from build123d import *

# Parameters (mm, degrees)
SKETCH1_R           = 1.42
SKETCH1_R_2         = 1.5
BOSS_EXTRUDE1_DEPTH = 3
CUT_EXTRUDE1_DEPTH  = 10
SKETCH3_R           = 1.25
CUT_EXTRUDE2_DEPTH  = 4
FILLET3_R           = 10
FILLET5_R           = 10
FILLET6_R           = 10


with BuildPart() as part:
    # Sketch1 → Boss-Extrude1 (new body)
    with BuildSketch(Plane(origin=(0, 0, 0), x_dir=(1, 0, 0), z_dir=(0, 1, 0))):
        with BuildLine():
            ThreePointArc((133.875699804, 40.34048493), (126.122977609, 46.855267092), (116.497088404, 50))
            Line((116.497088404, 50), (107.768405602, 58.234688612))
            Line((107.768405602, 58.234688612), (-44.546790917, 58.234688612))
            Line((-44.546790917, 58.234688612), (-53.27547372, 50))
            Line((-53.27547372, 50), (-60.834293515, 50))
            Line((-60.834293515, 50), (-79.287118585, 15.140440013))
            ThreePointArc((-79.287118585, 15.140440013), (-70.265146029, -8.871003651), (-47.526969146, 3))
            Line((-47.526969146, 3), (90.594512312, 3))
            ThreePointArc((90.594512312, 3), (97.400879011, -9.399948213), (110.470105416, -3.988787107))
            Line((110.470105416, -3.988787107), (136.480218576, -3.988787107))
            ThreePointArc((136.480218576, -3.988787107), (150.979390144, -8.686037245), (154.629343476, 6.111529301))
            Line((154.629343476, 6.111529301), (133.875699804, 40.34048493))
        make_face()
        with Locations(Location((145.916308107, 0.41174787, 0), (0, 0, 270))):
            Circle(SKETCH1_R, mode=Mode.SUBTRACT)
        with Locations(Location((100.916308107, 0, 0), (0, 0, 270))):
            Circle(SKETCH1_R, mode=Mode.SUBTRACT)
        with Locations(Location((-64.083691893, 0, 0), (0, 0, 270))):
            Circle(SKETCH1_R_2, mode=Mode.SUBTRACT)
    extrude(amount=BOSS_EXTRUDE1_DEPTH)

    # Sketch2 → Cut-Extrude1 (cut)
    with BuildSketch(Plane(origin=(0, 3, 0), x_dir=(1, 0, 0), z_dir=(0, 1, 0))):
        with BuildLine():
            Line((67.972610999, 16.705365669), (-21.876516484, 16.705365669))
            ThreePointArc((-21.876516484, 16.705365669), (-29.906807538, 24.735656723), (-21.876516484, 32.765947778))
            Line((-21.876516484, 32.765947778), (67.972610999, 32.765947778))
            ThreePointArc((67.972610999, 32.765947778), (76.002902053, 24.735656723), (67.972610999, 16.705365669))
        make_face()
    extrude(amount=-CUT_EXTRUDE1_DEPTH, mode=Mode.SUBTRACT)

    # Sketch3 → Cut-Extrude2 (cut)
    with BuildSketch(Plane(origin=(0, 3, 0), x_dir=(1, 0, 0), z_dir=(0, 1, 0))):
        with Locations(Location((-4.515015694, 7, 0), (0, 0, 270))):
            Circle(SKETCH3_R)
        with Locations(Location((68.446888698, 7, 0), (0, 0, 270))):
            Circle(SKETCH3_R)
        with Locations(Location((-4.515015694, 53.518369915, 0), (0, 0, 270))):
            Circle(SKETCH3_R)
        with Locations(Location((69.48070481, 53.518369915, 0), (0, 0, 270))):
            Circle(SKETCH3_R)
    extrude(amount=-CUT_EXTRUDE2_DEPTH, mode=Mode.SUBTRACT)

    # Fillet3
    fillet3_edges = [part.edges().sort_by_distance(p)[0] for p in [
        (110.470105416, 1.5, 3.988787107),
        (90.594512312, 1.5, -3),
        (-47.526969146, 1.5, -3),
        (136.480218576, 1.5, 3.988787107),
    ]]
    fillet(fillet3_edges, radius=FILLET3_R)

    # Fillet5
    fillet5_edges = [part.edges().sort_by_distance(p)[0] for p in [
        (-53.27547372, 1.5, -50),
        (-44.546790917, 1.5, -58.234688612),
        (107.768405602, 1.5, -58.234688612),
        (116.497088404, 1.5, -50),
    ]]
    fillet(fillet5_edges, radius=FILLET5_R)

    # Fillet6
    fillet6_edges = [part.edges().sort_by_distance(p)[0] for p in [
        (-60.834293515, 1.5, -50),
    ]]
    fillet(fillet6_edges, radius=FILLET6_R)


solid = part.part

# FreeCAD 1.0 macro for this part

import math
import FreeCAD as App
import Part
import Sketcher

V = App.Vector


def edges_at(feature, points):
    """Names of the edges that pass closest to the given points."""
    edges = feature.Shape.Edges
    near = lambda p: min(range(len(edges)), key=lambda i: edges[i].distToShape(Part.Vertex(*p))[0])
    return sorted({f"Edge{near(p) + 1}" for p in points})

doc = App.newDocument("Part")
params = doc.addObject("Spreadsheet::Sheet", "Params")
for row, (alias, value) in enumerate([
    ("sketch1_diameter", "3 mm"),
    ("sketch1_diameter2", "2.84 mm"),
    ("sketch1_diameter3", "2.84 mm"),
    ("sketch1_length", "12 mm"),
    ("sketch1_length2", "12 mm"),
    ("pad1_length", "3 mm"),
    ("pocket1_length", "10 mm"),
    ("sketch3_diameter", "2.5 mm"),
    ("pocket2_length", "4 mm"),
    ("fillet_radius", "10 mm"),
    ("fillet2_radius", "10 mm"),
    ("fillet3_radius", "10 mm"),
], start=1):
    params.set(f"A{row}", alias)
    params.set(f"B{row}", "=" + value)
    params.setAlias(f"B{row}", alias)

body = doc.addObject("PartDesign::Body", "Body")

# Sketch on XZ plane
sketch1 = body.newObject("Sketcher::SketchObject", "Sketch")
sketch1.AttachmentSupport = (doc.getObject("XZ_Plane"), [""])
sketch1.MapMode = "FlatFace"
sketch1.addGeometry(Part.ArcOfCircle(Part.Circle(V(113.201681, -23.608324, 0), V(0, 0, 1), 26.596621), math.radians(-82.882577), math.radians(-38.98438)), False)
sketch1.addGeometry(Part.LineSegment(V(116.497088, -50, 0), V(107.768406, -58.234689, 0)), False)
sketch1.addGeometry(Part.LineSegment(V(107.768406, -58.234689, 0), V(-44.546791, -58.234689, 0)), False)
sketch1.addGeometry(Part.LineSegment(V(-44.546791, -58.234689, 0), V(-53.275474, -50, 0)), False)
sketch1.addGeometry(Part.LineSegment(V(-53.275474, -50, 0), V(-60.834294, -50, 0)), False)
sketch1.addGeometry(Part.LineSegment(V(-60.834294, -50, 0), V(-79.287119, -15.14044, 0)), False)
sketch1.addGeometry(Part.ArcOfCircle(Part.Circle(V(-64.149669, -7.127467, 0), V(0, 0, 1), 17.127467), math.radians(13.944698), math.radians(207.8944)), False)
sketch1.addGeometry(Part.LineSegment(V(-47.526969, -3, 0), V(90.594512, -3, 0)), False)
sketch1.addGeometry(Part.ArcOfCircle(Part.Circle(V(100.916308, -0.597672, 0), V(0, 0, 1), 10.597672), math.radians(25.644107), math.radians(193.101954)), False)
sketch1.addGeometry(Part.LineSegment(V(110.470105, 3.988787, 0), V(136.480219, 3.988787, 0)), False)
sketch1.addGeometry(Part.ArcOfCircle(Part.Circle(V(145.916308, -0.411748, 0), V(0, 0, 1), 10.411748), math.radians(-33.191393), math.radians(154.997934)), False)
sketch1.addGeometry(Part.LineSegment(V(154.629343, -6.111529, 0), V(133.8757, -40.340485, 0)), False)
sketch1.addGeometry(Part.Circle(V(-64.083692, 0, 0), V(0, 0, 1), 1.5), False)
sketch1.addGeometry(Part.Circle(V(100.916308, 0, 0), V(0, 0, 1), 1.42), False)
sketch1.addGeometry(Part.Circle(V(145.916308, -0.411748, 0), V(0, 0, 1), 1.42), False)
sketch1.addConstraint(Sketcher.Constraint("Coincident", 0, 1, 1, 1))
sketch1.addConstraint(Sketcher.Constraint("Coincident", 1, 2, 2, 1))
sketch1.addConstraint(Sketcher.Constraint("Coincident", 2, 2, 3, 1))
sketch1.addConstraint(Sketcher.Constraint("Coincident", 3, 2, 4, 1))
sketch1.addConstraint(Sketcher.Constraint("Coincident", 4, 2, 5, 1))
sketch1.addConstraint(Sketcher.Constraint("Coincident", 5, 2, 6, 2))
sketch1.addConstraint(Sketcher.Constraint("Coincident", 6, 1, 7, 1))
sketch1.addConstraint(Sketcher.Constraint("Coincident", 7, 2, 8, 2))
sketch1.addConstraint(Sketcher.Constraint("Coincident", 8, 1, 9, 1))
sketch1.addConstraint(Sketcher.Constraint("Coincident", 9, 2, 10, 2))
sketch1.addConstraint(Sketcher.Constraint("Coincident", 10, 1, 11, 1))
sketch1.addConstraint(Sketcher.Constraint("Coincident", 11, 2, 0, 2))
sketch1.addConstraint(Sketcher.Constraint("Horizontal", 2))
sketch1.addConstraint(Sketcher.Constraint("Horizontal", 4))
sketch1.addConstraint(Sketcher.Constraint("Horizontal", 7))
sketch1.addConstraint(Sketcher.Constraint("Horizontal", 9))
sketch1.addConstraint(Sketcher.Constraint("Coincident", 14, 3, 10, 3))
sketch1.addConstraint(Sketcher.Constraint("PointOnObject", 12, 3, -1))
sketch1.addConstraint(Sketcher.Constraint("PointOnObject", 13, 3, -1))
sketch1.addConstraint(Sketcher.Constraint("Diameter", 12, 3.0))
sketch1.addConstraint(Sketcher.Constraint("Diameter", 13, 2.84))
sketch1.addConstraint(Sketcher.Constraint("Diameter", 14, 2.84))
sketch1.addConstraint(Sketcher.Constraint("Distance", 1, 12.0))
sketch1.addConstraint(Sketcher.Constraint("Distance", 3, 12.0))
sketch1.addConstraint(Sketcher.Constraint("DistanceY", 0, 1, -1, 1, 50.0))
sketch1.addConstraint(Sketcher.Constraint("DistanceY", 3, 2, -1, 1, 50.0))
sketch1.addConstraint(Sketcher.Constraint("DistanceY", 6, 1, -1, 1, 3.0))
sketch1.addConstraint(Sketcher.Constraint("DistanceX", 8, 3, 10, 3, 45.0))
sketch1.addConstraint(Sketcher.Constraint("DistanceX", 12, 3, 8, 3, 165.0))
sketch1.addConstraint(Sketcher.Constraint("DistanceX", 13, 3, 10, 3, 45.0))
sketch1.addConstraint(Sketcher.Constraint("Radius", 0, 26.596621))
sketch1.addConstraint(Sketcher.Constraint("Radius", 8, 10.597672))
sketch1.addConstraint(Sketcher.Constraint("Radius", 6, 17.127467))
sketch1.addConstraint(Sketcher.Constraint("Radius", 10, 10.411748))
sketch1.addConstraint(Sketcher.Constraint("DistanceX", 4, 2, 4, 1, 7.55882))
sketch1.addConstraint(Sketcher.Constraint("DistanceX", 7, 1, 7, 2, 138.121481))
sketch1.addConstraint(Sketcher.Constraint("DistanceX", -1, 1, 11, 2, 133.8757))
sketch1.addConstraint(Sketcher.Constraint("DistanceX", 12, 3, 2, 2, 19.536901))
sketch1.addConstraint(Sketcher.Constraint("DistanceX", 12, 3, 4, 2, 3.249398))
sketch1.addConstraint(Sketcher.Constraint("DistanceX", 4, 2, 1, 2, 168.602699))
sketch1.addConstraint(Sketcher.Constraint("DistanceX", 6, 3, 6, 1, 16.6227))
sketch1.addConstraint(Sketcher.Constraint("Distance", 5, 39.442308))
sketch1.addConstraint(Sketcher.Constraint("Distance", 11, 40.029178))
sketch1.addConstraint(Sketcher.Constraint("DistanceX", 9, 1, 9, 2, 26.010113))
sketch1.addConstraint(Sketcher.Constraint("DistanceX", -1, 1, 0, 3, 113.201681))
sketch1.addConstraint(Sketcher.Constraint("DistanceX", 6, 3, -1, 1, 64.149669))
sketch1.addConstraint(Sketcher.Constraint("DistanceX", -1, 1, 8, 3, 100.916308))
sketch1.addConstraint(Sketcher.Constraint("DistanceX", -1, 1, 9, 2, 136.480219))
sketch1.setExpression("Constraints[19]", "Params.sketch1_diameter")
sketch1.setExpression("Constraints[20]", "Params.sketch1_diameter2")
sketch1.setExpression("Constraints[21]", "Params.sketch1_diameter3")
sketch1.setExpression("Constraints[22]", "Params.sketch1_length")
sketch1.setExpression("Constraints[23]", "Params.sketch1_length2")
pad1 = body.newObject("PartDesign::Pad", "Pad")
pad1.Profile = sketch1
pad1.setExpression("Length", "Params.pad1_length")
pad1.Reversed = True

# Sketch on XZ plane
sketch2 = body.newObject("Sketcher::SketchObject", "Sketch001")
sketch2.AttachmentSupport = (doc.getObject("XZ_Plane"), [""])
sketch2.MapMode = "FlatFace"
sketch2.AttachmentOffset = App.Placement(V(0, 0, -3), App.Rotation())
sketch2.addGeometry(Part.LineSegment(V(-22, -17, 0), V(68, -17, 0)), False)
sketch2.addGeometry(Part.ArcOfCircle(Part.Circle(V(68, -25, 0), V(0, 0, 1), 8), math.radians(-90), math.radians(90)), False)
sketch2.addGeometry(Part.LineSegment(V(68, -33, 0), V(-22, -33, 0)), False)
sketch2.addGeometry(Part.ArcOfCircle(Part.Circle(V(-22, -25, 0), V(0, 0, 1), 8), math.radians(90), math.radians(270)), False)
sketch2.addConstraint(Sketcher.Constraint("Tangent", 0, 2, 1, 2))
sketch2.addConstraint(Sketcher.Constraint("Tangent", 1, 1, 2, 1))
sketch2.addConstraint(Sketcher.Constraint("Tangent", 2, 2, 3, 2))
sketch2.addConstraint(Sketcher.Constraint("Tangent", 3, 1, 0, 1))
sketch2.addConstraint(Sketcher.Constraint("Horizontal", 0))
sketch2.addConstraint(Sketcher.Constraint("Horizontal", 2))
sketch2.addConstraint(Sketcher.Constraint("Radius", 1, 8.030291))
sketch2.addConstraint(Sketcher.Constraint("DistanceX", 0, 1, 0, 2, 89.849127))
sketch2.addConstraint(Sketcher.Constraint("DistanceX", -1, 1, 1, 3, 67.972611))
sketch2.addConstraint(Sketcher.Constraint("DistanceY", 1, 3, -1, 1, 24.735657))
pocket1 = body.newObject("PartDesign::Pocket", "Pocket")
pocket1.Profile = sketch2
pocket1.setExpression("Length", "Params.pocket1_length")
pocket1.Reversed = True

# Sketch on XZ plane
sketch3 = body.newObject("Sketcher::SketchObject", "Sketch002")
sketch3.AttachmentSupport = (doc.getObject("XZ_Plane"), [""])
sketch3.MapMode = "FlatFace"
sketch3.AttachmentOffset = App.Placement(V(0, 0, -3), App.Rotation())
sketch3.addGeometry(Part.Circle(V(-4.5, -7, 0), V(0, 0, 1), 1.2), False)
sketch3.addGeometry(Part.Circle(V(68.4, -7, 0), V(0, 0, 1), 1.2), False)
sketch3.addGeometry(Part.Circle(V(-4.5, -53.5, 0), V(0, 0, 1), 1.2), False)
sketch3.addGeometry(Part.Circle(V(69.5, -53.5, 0), V(0, 0, 1), 1.2), False)
sketch3.addConstraint(Sketcher.Constraint("Equal", 0, 1))
sketch3.addConstraint(Sketcher.Constraint("Equal", 1, 2))
sketch3.addConstraint(Sketcher.Constraint("Equal", 2, 3))
sketch3.addConstraint(Sketcher.Constraint("Horizontal", 0, 3, 1, 3))
sketch3.addConstraint(Sketcher.Constraint("Horizontal", 2, 3, 3, 3))
sketch3.addConstraint(Sketcher.Constraint("Vertical", 0, 3, 2, 3))
sketch3.addConstraint(Sketcher.Constraint("Diameter", 0, 2.5))
sketch3.addConstraint(Sketcher.Constraint("DistanceY", 0, 3, -1, 1, 7.0))
sketch3.addConstraint(Sketcher.Constraint("DistanceX", -1, 1, 1, 3, 68.446889))
sketch3.addConstraint(Sketcher.Constraint("DistanceY", 2, 3, -1, 1, 53.51837))
sketch3.addConstraint(Sketcher.Constraint("DistanceX", 2, 3, 3, 3, 73.995721))
sketch3.addConstraint(Sketcher.Constraint("DistanceX", 0, 3, -1, 1, 4.515016))
sketch3.setExpression("Constraints[6]", "Params.sketch3_diameter")
pocket2 = body.newObject("PartDesign::Pocket", "Pocket001")
pocket2.Profile = sketch3
pocket2.setExpression("Length", "Params.pocket2_length")
pocket2.Reversed = True
doc.recompute()

fillet = body.newObject("PartDesign::Fillet", "Fillet")
fillet.Base = (pocket2, edges_at(pocket2, [
    (110.47, 1.5, 3.989),
    (90.595, 1.5, -3),
    (-47.527, 1.5, -3),
    (136.48, 1.5, 3.989),
]))
fillet.setExpression("Radius", "Params.fillet_radius")
doc.recompute()

fillet2 = body.newObject("PartDesign::Fillet", "Fillet001")
fillet2.Base = (fillet, edges_at(fillet, [
    (-53.275, 1.5, -50),
    (-44.547, 1.5, -58.235),
    (107.768, 1.5, -58.235),
    (116.497, 1.5, -50),
]))
fillet2.setExpression("Radius", "Params.fillet2_radius")
doc.recompute()

fillet3 = body.newObject("PartDesign::Fillet", "Fillet002")
fillet3.Base = (fillet2, edges_at(fillet2, [(-60.834, 1.5, -50)]))
fillet3.setExpression("Radius", "Params.fillet3_radius")

doc.recompute()
